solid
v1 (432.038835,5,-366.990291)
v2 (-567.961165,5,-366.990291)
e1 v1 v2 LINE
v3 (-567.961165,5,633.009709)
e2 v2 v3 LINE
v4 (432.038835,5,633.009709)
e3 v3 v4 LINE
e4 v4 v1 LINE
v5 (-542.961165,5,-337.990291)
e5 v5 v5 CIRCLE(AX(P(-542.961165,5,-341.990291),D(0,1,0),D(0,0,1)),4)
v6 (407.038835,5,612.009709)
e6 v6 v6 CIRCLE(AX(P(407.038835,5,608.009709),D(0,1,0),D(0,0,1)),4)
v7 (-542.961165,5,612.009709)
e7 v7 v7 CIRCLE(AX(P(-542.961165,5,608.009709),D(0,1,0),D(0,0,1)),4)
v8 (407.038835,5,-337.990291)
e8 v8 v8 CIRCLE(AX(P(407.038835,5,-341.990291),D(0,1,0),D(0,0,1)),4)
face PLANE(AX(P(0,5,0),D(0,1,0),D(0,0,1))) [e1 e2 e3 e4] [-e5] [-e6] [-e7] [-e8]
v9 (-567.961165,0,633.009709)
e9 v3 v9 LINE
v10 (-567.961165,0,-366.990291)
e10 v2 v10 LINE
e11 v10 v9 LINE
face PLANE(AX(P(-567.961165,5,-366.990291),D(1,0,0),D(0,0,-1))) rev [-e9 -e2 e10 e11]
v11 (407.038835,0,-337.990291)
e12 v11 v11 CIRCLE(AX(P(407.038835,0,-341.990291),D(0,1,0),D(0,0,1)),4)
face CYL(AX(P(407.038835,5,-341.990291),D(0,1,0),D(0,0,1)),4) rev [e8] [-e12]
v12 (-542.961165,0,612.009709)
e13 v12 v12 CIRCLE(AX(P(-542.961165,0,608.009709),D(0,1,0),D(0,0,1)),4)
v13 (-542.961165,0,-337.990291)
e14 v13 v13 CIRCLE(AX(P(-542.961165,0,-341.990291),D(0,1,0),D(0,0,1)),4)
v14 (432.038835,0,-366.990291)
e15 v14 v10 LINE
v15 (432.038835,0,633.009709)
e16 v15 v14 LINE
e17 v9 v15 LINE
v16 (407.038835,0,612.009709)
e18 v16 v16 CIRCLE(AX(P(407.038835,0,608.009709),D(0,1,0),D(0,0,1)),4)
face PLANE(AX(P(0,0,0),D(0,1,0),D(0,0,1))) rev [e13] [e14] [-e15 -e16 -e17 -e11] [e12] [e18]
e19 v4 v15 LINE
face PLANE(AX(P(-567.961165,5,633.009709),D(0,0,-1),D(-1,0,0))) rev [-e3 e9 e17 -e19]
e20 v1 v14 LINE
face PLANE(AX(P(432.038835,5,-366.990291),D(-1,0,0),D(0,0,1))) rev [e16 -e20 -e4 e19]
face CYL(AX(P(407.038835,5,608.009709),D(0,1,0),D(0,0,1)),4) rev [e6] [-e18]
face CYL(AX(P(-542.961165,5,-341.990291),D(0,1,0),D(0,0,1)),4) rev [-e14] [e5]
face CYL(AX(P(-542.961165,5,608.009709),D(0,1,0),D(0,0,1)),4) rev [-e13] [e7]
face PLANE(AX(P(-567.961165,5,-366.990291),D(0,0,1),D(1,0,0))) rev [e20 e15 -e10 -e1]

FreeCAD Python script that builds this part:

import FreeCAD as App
import Part
import Sketcher

V = App.Vector


def add_polygon(sketch, points):
    """Adds a closed chain of lines whose ends are joined by coincident constraints."""
    first, n = sketch.GeometryCount, len(points)
    for a, b in zip(points, points[1:] + points[:1]):
        sketch.addGeometry(Part.LineSegment(App.Vector(*a, 0), App.Vector(*b, 0)), False)
    for i in range(n):
        sketch.addConstraint(Sketcher.Constraint("Coincident", first + i, 2, first + (i + 1) % n, 1))

doc = App.newDocument("Part")
body = doc.addObject("PartDesign::Body", "Body")

sketch1 = body.newObject("Sketcher::SketchObject", "Sketch")
sketch1.AttachmentSupport = (doc.getObject("XZ_Plane"), [""])
sketch1.MapMode = "FlatFace"
add_polygon(sketch1, [(-568, -367), (-568, 633), (432, 633), (432, -367)])
sketch1.addConstraint([
    Sketcher.Constraint("Vertical", 0),
    Sketcher.Constraint("Horizontal", 1),
    Sketcher.Constraint("Vertical", 2),
    Sketcher.Constraint("Horizontal", 3),
    Sketcher.Constraint("Equal", 3, 0),
    Sketcher.Constraint("DistanceX", 1, 1, 1, 2, 1000.0),
    Sketcher.Constraint("DistanceY", -1, 1, 0, 2, 633.009709),
    Sketcher.Constraint("DistanceX", 0, 2, -1, 1, 567.961165),
])
pad1 = body.newObject("PartDesign::Pad", "Pad")
pad1.Profile = sketch1
pad1.Length = 5
pad1.Reversed = True

sketch2 = body.newObject("Sketcher::SketchObject", "Sketch001")
sketch2.AttachmentSupport = (doc.getObject("XZ_Plane"), [""])
sketch2.MapMode = "FlatFace"
sketch2.AttachmentOffset = App.Placement(V(0, 0, -5), App.Rotation())
sketch2.addGeometry([
    Part.Circle(V(407, -342, 0), V(0, 0, 1), 4),
    Part.Circle(V(-543, -342, 0), V(0, 0, 1), 4),
    Part.Circle(V(-543, 608, 0), V(0, 0, 1), 4),
    Part.Circle(V(407, 608, 0), V(0, 0, 1), 4),
], False)
sketch2.addConstraint([
    Sketcher.Constraint("Equal", 0, 1),
    Sketcher.Constraint("Equal", 1, 2),
    Sketcher.Constraint("Equal", 2, 3),
    Sketcher.Constraint("Horizontal", 0, 3, 1, 3),
    Sketcher.Constraint("Horizontal", 2, 3, 3, 3),
    Sketcher.Constraint("Vertical", 1, 3, 2, 3),
    Sketcher.Constraint("Vertical", 0, 3, 3, 3),
    Sketcher.Constraint("Diameter", 0, 8.0),
    Sketcher.Constraint("DistanceX", 1, 3, 0, 3, 950.0),
    Sketcher.Constraint("DistanceY", 1, 3, 2, 3, 950.0),
    Sketcher.Constraint("DistanceY", 0, 3, -1, 1, 341.990291),
    Sketcher.Constraint("DistanceX", -1, 1, 0, 3, 407.038835),
])
doc.recompute()
hole = body.newObject("PartDesign::Hole", "Hole")
hole.Profile = sketch2
hole.ThreadType = "None"
hole.Diameter = 8
hole.DepthType = "Dimension"
hole.Depth = 10
hole.DrillPoint = "Angled"
hole.DrillPointAngle = 118
hole.Reversed = True

doc.recompute()
